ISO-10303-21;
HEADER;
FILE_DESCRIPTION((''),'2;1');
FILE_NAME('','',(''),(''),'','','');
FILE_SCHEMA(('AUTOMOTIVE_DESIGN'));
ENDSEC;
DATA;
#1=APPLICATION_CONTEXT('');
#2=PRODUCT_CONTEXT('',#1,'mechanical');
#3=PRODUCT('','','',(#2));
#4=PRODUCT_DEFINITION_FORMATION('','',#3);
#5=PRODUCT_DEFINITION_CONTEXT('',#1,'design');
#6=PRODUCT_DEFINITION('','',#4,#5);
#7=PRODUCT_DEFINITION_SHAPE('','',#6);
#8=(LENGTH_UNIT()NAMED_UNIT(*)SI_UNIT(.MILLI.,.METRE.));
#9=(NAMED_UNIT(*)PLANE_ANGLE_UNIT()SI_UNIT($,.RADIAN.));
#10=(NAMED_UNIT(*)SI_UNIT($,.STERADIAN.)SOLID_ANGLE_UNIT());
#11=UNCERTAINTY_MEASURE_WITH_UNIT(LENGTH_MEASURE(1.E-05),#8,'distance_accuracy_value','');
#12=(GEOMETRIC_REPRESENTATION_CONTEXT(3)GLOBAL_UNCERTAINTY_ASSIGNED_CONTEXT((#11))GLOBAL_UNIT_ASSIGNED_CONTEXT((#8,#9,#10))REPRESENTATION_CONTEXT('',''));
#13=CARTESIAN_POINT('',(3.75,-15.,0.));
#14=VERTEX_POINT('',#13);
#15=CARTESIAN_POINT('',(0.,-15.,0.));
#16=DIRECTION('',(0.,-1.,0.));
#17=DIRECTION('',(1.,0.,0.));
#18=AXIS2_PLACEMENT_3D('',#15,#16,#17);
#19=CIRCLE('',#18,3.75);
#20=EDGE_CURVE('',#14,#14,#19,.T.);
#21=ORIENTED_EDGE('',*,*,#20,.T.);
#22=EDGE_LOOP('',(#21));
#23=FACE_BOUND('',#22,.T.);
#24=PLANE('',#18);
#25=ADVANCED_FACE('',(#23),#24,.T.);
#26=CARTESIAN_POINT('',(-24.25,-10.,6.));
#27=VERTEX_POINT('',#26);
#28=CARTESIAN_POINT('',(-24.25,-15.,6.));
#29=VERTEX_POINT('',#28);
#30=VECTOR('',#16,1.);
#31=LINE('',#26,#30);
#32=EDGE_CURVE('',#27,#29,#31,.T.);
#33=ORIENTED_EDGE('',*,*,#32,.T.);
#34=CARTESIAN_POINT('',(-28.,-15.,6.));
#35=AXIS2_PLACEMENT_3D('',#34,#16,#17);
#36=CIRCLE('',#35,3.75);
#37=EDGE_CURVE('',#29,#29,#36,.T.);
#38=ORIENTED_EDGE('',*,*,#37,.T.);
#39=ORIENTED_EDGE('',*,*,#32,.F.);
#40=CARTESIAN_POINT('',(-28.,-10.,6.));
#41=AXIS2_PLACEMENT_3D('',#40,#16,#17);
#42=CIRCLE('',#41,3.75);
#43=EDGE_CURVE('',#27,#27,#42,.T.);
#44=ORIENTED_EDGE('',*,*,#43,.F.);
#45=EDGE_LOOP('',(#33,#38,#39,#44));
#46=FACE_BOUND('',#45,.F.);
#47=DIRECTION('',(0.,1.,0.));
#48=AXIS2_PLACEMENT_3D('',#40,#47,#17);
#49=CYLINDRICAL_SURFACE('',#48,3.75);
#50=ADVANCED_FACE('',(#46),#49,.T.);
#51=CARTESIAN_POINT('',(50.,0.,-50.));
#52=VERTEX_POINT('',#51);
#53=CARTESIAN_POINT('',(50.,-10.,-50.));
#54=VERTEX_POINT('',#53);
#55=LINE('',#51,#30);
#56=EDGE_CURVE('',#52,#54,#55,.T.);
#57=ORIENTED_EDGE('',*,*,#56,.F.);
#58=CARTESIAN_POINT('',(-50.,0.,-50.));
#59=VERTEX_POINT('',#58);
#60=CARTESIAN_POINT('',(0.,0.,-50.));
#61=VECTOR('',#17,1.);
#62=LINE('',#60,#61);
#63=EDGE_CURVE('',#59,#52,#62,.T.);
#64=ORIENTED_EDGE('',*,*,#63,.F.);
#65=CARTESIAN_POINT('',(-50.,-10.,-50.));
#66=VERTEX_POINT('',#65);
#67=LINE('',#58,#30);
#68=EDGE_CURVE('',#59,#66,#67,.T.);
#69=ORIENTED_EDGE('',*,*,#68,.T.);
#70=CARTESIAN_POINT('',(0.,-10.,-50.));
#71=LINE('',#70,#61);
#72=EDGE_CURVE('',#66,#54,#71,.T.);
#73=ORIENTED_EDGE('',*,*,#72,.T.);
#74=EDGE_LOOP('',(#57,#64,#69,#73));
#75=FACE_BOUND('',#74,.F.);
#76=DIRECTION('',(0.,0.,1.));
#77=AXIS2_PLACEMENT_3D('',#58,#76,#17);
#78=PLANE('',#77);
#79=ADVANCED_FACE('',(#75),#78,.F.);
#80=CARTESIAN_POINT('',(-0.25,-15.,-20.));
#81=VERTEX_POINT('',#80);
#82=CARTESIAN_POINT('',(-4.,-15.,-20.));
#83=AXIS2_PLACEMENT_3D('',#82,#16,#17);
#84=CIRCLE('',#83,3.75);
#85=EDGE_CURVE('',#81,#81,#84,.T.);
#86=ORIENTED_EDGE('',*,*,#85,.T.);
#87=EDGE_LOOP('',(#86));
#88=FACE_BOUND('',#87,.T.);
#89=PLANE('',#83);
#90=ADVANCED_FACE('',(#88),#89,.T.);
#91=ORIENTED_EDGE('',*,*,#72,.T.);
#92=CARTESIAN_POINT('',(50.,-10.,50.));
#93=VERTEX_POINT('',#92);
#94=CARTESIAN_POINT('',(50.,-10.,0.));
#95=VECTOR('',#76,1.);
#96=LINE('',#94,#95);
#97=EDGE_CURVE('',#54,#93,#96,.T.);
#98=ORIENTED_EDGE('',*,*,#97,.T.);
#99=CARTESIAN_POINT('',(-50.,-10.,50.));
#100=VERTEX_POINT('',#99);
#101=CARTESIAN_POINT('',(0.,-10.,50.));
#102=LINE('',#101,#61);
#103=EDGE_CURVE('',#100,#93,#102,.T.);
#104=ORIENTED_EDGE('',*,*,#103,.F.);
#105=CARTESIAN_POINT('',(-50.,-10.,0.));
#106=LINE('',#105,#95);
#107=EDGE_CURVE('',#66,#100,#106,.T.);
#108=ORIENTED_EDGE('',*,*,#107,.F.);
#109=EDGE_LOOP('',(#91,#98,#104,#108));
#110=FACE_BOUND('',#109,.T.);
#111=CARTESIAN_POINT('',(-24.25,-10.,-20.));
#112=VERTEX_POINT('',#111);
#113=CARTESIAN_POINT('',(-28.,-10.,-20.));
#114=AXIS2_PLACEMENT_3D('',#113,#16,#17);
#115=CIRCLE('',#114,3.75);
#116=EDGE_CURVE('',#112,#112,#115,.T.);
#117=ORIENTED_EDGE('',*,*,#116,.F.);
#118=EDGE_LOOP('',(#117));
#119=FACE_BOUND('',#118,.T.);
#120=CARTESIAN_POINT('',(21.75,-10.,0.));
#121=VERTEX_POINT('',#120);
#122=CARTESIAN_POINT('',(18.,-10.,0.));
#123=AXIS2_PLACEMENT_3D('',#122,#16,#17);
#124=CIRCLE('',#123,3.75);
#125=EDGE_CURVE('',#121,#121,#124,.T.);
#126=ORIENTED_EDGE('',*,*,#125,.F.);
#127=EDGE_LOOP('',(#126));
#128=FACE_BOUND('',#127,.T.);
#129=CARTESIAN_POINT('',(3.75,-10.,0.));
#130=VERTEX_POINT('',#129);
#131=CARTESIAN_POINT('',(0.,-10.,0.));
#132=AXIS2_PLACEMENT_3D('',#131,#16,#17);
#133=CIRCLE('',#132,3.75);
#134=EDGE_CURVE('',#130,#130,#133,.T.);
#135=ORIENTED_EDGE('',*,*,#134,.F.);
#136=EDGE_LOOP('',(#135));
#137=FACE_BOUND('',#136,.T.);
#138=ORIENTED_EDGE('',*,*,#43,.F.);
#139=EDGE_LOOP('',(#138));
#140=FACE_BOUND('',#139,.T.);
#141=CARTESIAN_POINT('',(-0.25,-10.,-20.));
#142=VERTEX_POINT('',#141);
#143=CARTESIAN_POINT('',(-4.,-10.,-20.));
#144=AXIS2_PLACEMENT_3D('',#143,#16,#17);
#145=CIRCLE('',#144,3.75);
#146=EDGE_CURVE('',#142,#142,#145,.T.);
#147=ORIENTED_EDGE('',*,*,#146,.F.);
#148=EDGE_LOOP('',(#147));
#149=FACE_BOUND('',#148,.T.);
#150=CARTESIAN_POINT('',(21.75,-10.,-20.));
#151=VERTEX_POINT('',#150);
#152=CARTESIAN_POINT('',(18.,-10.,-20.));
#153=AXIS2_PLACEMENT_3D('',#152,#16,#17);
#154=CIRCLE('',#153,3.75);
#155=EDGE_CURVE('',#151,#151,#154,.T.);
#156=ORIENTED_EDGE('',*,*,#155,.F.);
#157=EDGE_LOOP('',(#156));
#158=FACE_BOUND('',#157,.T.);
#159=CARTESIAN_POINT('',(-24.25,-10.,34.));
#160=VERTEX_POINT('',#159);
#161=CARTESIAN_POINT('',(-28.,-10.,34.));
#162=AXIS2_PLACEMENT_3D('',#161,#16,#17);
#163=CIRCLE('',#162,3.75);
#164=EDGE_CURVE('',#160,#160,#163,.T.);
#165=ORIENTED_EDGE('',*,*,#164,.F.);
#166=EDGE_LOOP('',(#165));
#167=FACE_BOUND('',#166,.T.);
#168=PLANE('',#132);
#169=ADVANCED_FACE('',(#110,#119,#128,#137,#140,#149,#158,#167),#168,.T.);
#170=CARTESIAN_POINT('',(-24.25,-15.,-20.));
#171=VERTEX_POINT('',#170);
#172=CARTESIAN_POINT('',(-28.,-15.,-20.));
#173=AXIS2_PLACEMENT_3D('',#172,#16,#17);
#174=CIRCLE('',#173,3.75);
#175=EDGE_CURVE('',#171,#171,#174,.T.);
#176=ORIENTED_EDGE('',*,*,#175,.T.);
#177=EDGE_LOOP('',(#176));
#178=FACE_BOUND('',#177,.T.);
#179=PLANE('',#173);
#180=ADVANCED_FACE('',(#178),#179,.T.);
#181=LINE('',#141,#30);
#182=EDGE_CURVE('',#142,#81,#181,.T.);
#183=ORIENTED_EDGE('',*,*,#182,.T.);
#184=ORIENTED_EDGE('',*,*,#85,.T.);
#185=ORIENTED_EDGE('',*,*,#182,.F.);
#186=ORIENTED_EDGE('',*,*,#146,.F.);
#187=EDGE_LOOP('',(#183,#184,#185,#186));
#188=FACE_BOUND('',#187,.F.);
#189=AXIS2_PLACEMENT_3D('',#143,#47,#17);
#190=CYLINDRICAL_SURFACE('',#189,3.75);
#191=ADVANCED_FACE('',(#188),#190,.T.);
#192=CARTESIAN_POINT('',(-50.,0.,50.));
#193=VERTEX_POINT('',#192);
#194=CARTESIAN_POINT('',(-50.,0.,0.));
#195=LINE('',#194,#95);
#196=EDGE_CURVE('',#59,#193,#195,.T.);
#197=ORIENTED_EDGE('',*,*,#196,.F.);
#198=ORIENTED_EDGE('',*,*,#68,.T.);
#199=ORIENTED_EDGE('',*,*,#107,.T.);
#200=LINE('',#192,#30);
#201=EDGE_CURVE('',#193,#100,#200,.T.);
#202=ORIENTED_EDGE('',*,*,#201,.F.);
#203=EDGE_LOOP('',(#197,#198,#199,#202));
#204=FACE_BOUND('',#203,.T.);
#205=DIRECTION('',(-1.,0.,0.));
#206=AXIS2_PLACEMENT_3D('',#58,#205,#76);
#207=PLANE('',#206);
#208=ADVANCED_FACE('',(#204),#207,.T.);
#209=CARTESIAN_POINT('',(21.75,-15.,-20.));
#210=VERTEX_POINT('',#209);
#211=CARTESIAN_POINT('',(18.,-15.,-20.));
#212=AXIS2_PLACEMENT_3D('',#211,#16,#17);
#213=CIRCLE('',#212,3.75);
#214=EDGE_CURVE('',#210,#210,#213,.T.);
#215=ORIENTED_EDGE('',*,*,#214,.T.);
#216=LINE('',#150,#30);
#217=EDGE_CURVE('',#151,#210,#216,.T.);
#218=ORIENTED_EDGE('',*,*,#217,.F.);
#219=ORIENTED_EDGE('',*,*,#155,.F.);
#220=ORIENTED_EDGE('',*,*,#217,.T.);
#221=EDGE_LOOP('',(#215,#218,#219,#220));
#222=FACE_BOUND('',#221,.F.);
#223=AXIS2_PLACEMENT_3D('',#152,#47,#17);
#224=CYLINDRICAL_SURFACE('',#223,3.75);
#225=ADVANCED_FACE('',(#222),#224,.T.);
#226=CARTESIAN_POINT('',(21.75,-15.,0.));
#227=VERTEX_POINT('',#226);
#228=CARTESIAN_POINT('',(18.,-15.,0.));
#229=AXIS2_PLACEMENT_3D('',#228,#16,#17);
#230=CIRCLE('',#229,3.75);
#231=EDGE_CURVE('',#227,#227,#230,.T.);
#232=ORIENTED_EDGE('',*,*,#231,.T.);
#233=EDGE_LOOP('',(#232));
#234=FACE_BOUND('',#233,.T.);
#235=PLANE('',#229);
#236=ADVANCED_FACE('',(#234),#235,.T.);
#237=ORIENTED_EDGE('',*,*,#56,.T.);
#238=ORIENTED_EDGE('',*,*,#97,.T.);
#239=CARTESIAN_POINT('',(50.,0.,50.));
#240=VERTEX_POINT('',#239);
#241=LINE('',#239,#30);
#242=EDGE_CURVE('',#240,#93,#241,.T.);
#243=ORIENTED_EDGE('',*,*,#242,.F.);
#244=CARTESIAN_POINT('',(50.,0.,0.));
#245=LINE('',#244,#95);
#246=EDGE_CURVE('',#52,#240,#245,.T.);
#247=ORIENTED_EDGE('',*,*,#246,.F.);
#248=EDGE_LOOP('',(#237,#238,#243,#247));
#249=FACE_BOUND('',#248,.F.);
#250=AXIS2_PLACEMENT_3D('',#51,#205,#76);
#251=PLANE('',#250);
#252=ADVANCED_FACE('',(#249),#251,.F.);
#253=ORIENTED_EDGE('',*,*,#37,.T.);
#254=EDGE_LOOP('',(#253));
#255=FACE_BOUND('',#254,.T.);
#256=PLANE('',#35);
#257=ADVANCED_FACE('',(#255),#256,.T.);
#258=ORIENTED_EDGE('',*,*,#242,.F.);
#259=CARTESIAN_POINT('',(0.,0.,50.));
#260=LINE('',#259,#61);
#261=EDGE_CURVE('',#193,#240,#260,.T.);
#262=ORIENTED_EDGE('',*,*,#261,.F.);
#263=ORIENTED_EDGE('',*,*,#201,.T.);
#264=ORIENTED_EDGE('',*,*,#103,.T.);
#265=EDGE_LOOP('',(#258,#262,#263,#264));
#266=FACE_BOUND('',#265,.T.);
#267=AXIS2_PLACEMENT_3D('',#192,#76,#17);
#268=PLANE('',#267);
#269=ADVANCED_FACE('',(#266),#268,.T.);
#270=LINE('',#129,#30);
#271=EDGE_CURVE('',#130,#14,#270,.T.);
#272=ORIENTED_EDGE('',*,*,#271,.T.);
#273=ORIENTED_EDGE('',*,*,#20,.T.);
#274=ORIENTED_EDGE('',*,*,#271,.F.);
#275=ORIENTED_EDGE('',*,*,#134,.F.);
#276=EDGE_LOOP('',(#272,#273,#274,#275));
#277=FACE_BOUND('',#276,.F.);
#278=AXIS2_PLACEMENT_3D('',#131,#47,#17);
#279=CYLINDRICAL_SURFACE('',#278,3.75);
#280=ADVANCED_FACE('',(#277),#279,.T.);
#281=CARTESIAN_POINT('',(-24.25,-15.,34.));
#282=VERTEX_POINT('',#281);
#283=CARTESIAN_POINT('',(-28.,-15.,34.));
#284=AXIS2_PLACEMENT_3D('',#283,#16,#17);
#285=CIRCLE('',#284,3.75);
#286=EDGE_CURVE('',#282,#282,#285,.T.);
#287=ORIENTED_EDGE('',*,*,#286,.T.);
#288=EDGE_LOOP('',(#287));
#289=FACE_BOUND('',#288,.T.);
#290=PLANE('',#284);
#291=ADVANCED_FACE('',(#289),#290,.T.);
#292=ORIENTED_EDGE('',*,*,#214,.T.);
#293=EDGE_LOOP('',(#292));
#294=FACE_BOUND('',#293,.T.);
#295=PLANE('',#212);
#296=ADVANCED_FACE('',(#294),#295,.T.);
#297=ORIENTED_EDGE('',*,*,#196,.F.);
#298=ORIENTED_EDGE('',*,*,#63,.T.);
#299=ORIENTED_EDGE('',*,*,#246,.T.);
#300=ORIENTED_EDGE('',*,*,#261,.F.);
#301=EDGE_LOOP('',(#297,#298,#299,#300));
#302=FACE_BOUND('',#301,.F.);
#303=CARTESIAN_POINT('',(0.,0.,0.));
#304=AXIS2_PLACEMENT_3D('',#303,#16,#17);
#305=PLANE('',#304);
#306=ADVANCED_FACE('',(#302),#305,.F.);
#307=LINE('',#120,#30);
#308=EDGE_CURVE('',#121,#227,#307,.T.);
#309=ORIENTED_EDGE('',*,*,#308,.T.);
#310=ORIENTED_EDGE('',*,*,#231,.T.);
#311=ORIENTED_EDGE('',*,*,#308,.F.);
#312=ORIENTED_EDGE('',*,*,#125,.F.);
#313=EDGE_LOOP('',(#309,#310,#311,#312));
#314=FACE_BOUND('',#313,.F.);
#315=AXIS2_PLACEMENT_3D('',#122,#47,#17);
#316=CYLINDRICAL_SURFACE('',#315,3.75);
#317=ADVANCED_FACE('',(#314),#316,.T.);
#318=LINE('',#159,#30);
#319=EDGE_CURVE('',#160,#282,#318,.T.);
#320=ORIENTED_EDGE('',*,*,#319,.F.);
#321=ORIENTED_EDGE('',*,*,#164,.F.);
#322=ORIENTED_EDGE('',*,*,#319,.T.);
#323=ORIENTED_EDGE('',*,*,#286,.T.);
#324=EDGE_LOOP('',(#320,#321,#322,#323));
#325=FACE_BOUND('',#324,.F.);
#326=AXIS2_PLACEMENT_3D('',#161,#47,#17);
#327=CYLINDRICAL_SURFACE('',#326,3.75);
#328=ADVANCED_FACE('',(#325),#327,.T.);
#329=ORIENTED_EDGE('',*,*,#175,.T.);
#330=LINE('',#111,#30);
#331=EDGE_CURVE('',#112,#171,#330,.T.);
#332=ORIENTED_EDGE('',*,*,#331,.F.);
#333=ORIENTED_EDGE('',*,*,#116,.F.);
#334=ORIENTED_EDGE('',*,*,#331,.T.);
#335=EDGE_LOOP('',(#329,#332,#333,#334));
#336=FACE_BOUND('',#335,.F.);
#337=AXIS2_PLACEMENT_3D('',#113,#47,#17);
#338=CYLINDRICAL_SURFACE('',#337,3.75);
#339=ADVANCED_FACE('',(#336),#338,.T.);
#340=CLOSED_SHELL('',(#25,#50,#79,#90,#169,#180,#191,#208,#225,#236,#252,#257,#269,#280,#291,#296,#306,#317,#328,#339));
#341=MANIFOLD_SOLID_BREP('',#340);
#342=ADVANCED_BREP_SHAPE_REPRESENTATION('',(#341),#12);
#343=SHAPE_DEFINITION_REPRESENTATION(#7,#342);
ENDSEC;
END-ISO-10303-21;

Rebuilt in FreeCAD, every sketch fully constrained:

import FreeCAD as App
import Part
import Sketcher

V = App.Vector

doc = App.newDocument("Part")
body = doc.addObject("PartDesign::Body", "Body")

# Sketch on XZ plane
sketch1 = body.newObject("Sketcher::SketchObject", "Sketch")
sketch1.AttachmentSupport = (doc.getObject("XZ_Plane"), [""])
sketch1.MapMode = "FlatFace"
sketch1.addGeometry([
    Part.LineSegment(V(-50, 50, 0), V(-50, -50, 0)),
    Part.LineSegment(V(-50, -50, 0), V(50, -50, 0)),
    Part.LineSegment(V(50, -50, 0), V(50, 50, 0)),
    Part.LineSegment(V(50, 50, 0), V(-50, 50, 0)),
], False)
sketch1.addConstraint([
    Sketcher.Constraint("Coincident", 0, 2, 1, 1),
    Sketcher.Constraint("Coincident", 1, 2, 2, 1),
    Sketcher.Constraint("Coincident", 2, 2, 3, 1),
    Sketcher.Constraint("Coincident", 3, 2, 0, 1),
    Sketcher.Constraint("Vertical", 0),
    Sketcher.Constraint("Horizontal", 1),
    Sketcher.Constraint("Vertical", 2),
    Sketcher.Constraint("Horizontal", 3),
    Sketcher.Constraint("Symmetric", 0, 2, 2, 2, -1, 1),
    Sketcher.Constraint("Equal", 3, 0),
    Sketcher.Constraint("DistanceX", 1, 1, 1, 2, 100.0),
])
pad1 = body.newObject("PartDesign::Pad", "Pad")
pad1.Profile = sketch1
pad1.Length = 10

# Sketch on XZ plane
sketch2 = body.newObject("Sketcher::SketchObject", "Sketch001")
sketch2.AttachmentSupport = (doc.getObject("XZ_Plane"), [""])
sketch2.MapMode = "FlatFace"
sketch2.AttachmentOffset = App.Placement(V(0, 0, 10), App.Rotation())
sketch2.addGeometry(Part.Circle(V(0, 0, 0), V(0, 0, 1), 3.8), False)
sketch2.addConstraint([
    Sketcher.Constraint("Coincident", 0, 3, -1, 1),
    Sketcher.Constraint("Diameter", 0, 7.5),
])
pad2 = body.newObject("PartDesign::Pad", "Pad001")
pad2.Profile = sketch2
pad2.Length = 5

# Sketch on XZ plane
sketch3 = body.newObject("Sketcher::SketchObject", "Sketch002")
sketch3.AttachmentSupport = (doc.getObject("XZ_Plane"), [""])
sketch3.MapMode = "FlatFace"
sketch3.AttachmentOffset = App.Placement(V(0, 0, 10), App.Rotation())
sketch3.addGeometry(Part.Circle(V(18, 0, 0), V(0, 0, 1), 3.8), False)
sketch3.addConstraint([
    Sketcher.Constraint("PointOnObject", 0, 3, -1),
    Sketcher.Constraint("Diameter", 0, 7.5),
    Sketcher.Constraint("DistanceX", -1, 1, 0, 3, 18.0),
])
pad3 = body.newObject("PartDesign::Pad", "Pad002")
pad3.Profile = sketch3
pad3.Length = 5

# Sketch on XZ plane
sketch4 = body.newObject("Sketcher::SketchObject", "Sketch003")
sketch4.AttachmentSupport = (doc.getObject("XZ_Plane"), [""])
sketch4.MapMode = "FlatFace"
sketch4.AttachmentOffset = App.Placement(V(0, 0, 10), App.Rotation())
sketch4.addGeometry(Part.Circle(V(-4, -20, 0), V(0, 0, 1), 3.8), False)
sketch4.addConstraint([
    Sketcher.Constraint("Diameter", 0, 7.5),
    Sketcher.Constraint("DistanceX", 0, 3, -1, 1, 4.0),
    Sketcher.Constraint("DistanceY", 0, 3, -1, 1, 20.0),
])
pad4 = body.newObject("PartDesign::Pad", "Pad003")
pad4.Profile = sketch4
pad4.Length = 5

# Sketch on XZ plane
sketch5 = body.newObject("Sketcher::SketchObject", "Sketch004")
sketch5.AttachmentSupport = (doc.getObject("XZ_Plane"), [""])
sketch5.MapMode = "FlatFace"
sketch5.AttachmentOffset = App.Placement(V(0, 0, 10), App.Rotation())
sketch5.addGeometry(Part.Circle(V(-28, -20, 0), V(0, 0, 1), 3.8), False)
sketch5.addConstraint([
    Sketcher.Constraint("Diameter", 0, 7.5),
    Sketcher.Constraint("DistanceX", 0, 3, -1, 1, 28.0),
    Sketcher.Constraint("DistanceY", 0, 3, -1, 1, 20.0),
])
pad5 = body.newObject("PartDesign::Pad", "Pad004")
pad5.Profile = sketch5
pad5.Length = 5

# Sketch on XZ plane
sketch6 = body.newObject("Sketcher::SketchObject", "Sketch005")
sketch6.AttachmentSupport = (doc.getObject("XZ_Plane"), [""])
sketch6.MapMode = "FlatFace"
sketch6.AttachmentOffset = App.Placement(V(0, 0, 10), App.Rotation())
sketch6.addGeometry(Part.Circle(V(-28, 6, 0), V(0, 0, 1), 3.8), False)
sketch6.addConstraint([
    Sketcher.Constraint("Diameter", 0, 7.5),
    Sketcher.Constraint("DistanceX", 0, 3, -1, 1, 28.0),
    Sketcher.Constraint("DistanceY", -1, 1, 0, 3, 6.0),
])
pad6 = body.newObject("PartDesign::Pad", "Pad005")
pad6.Profile = sketch6
pad6.Length = 5

# Sketch on XZ plane
sketch7 = body.newObject("Sketcher::SketchObject", "Sketch006")
sketch7.AttachmentSupport = (doc.getObject("XZ_Plane"), [""])
sketch7.MapMode = "FlatFace"
sketch7.AttachmentOffset = App.Placement(V(0, 0, 10), App.Rotation())
sketch7.addGeometry(Part.Circle(V(-28, 34, 0), V(0, 0, 1), 3.8), False)
sketch7.addConstraint([
    Sketcher.Constraint("Diameter", 0, 7.5),
    Sketcher.Constraint("DistanceX", 0, 3, -1, 1, 28.0),
    Sketcher.Constraint("DistanceY", -1, 1, 0, 3, 34.0),
])
pad7 = body.newObject("PartDesign::Pad", "Pad006")
pad7.Profile = sketch7
pad7.Length = 5

# Sketch on XZ plane
sketch8 = body.newObject("Sketcher::SketchObject", "Sketch007")
sketch8.AttachmentSupport = (doc.getObject("XZ_Plane"), [""])
sketch8.MapMode = "FlatFace"
sketch8.AttachmentOffset = App.Placement(V(0, 0, 10), App.Rotation())
sketch8.addGeometry(Part.Circle(V(18, -20, 0), V(0, 0, 1), 3.8), False)
sketch8.addConstraint([
    Sketcher.Constraint("Diameter", 0, 7.5),
    Sketcher.Constraint("DistanceX", -1, 1, 0, 3, 18.0),
    Sketcher.Constraint("DistanceY", 0, 3, -1, 1, 20.0),
])
pad8 = body.newObject("PartDesign::Pad", "Pad007")
pad8.Profile = sketch8
pad8.Length = 5

doc.recompute()
